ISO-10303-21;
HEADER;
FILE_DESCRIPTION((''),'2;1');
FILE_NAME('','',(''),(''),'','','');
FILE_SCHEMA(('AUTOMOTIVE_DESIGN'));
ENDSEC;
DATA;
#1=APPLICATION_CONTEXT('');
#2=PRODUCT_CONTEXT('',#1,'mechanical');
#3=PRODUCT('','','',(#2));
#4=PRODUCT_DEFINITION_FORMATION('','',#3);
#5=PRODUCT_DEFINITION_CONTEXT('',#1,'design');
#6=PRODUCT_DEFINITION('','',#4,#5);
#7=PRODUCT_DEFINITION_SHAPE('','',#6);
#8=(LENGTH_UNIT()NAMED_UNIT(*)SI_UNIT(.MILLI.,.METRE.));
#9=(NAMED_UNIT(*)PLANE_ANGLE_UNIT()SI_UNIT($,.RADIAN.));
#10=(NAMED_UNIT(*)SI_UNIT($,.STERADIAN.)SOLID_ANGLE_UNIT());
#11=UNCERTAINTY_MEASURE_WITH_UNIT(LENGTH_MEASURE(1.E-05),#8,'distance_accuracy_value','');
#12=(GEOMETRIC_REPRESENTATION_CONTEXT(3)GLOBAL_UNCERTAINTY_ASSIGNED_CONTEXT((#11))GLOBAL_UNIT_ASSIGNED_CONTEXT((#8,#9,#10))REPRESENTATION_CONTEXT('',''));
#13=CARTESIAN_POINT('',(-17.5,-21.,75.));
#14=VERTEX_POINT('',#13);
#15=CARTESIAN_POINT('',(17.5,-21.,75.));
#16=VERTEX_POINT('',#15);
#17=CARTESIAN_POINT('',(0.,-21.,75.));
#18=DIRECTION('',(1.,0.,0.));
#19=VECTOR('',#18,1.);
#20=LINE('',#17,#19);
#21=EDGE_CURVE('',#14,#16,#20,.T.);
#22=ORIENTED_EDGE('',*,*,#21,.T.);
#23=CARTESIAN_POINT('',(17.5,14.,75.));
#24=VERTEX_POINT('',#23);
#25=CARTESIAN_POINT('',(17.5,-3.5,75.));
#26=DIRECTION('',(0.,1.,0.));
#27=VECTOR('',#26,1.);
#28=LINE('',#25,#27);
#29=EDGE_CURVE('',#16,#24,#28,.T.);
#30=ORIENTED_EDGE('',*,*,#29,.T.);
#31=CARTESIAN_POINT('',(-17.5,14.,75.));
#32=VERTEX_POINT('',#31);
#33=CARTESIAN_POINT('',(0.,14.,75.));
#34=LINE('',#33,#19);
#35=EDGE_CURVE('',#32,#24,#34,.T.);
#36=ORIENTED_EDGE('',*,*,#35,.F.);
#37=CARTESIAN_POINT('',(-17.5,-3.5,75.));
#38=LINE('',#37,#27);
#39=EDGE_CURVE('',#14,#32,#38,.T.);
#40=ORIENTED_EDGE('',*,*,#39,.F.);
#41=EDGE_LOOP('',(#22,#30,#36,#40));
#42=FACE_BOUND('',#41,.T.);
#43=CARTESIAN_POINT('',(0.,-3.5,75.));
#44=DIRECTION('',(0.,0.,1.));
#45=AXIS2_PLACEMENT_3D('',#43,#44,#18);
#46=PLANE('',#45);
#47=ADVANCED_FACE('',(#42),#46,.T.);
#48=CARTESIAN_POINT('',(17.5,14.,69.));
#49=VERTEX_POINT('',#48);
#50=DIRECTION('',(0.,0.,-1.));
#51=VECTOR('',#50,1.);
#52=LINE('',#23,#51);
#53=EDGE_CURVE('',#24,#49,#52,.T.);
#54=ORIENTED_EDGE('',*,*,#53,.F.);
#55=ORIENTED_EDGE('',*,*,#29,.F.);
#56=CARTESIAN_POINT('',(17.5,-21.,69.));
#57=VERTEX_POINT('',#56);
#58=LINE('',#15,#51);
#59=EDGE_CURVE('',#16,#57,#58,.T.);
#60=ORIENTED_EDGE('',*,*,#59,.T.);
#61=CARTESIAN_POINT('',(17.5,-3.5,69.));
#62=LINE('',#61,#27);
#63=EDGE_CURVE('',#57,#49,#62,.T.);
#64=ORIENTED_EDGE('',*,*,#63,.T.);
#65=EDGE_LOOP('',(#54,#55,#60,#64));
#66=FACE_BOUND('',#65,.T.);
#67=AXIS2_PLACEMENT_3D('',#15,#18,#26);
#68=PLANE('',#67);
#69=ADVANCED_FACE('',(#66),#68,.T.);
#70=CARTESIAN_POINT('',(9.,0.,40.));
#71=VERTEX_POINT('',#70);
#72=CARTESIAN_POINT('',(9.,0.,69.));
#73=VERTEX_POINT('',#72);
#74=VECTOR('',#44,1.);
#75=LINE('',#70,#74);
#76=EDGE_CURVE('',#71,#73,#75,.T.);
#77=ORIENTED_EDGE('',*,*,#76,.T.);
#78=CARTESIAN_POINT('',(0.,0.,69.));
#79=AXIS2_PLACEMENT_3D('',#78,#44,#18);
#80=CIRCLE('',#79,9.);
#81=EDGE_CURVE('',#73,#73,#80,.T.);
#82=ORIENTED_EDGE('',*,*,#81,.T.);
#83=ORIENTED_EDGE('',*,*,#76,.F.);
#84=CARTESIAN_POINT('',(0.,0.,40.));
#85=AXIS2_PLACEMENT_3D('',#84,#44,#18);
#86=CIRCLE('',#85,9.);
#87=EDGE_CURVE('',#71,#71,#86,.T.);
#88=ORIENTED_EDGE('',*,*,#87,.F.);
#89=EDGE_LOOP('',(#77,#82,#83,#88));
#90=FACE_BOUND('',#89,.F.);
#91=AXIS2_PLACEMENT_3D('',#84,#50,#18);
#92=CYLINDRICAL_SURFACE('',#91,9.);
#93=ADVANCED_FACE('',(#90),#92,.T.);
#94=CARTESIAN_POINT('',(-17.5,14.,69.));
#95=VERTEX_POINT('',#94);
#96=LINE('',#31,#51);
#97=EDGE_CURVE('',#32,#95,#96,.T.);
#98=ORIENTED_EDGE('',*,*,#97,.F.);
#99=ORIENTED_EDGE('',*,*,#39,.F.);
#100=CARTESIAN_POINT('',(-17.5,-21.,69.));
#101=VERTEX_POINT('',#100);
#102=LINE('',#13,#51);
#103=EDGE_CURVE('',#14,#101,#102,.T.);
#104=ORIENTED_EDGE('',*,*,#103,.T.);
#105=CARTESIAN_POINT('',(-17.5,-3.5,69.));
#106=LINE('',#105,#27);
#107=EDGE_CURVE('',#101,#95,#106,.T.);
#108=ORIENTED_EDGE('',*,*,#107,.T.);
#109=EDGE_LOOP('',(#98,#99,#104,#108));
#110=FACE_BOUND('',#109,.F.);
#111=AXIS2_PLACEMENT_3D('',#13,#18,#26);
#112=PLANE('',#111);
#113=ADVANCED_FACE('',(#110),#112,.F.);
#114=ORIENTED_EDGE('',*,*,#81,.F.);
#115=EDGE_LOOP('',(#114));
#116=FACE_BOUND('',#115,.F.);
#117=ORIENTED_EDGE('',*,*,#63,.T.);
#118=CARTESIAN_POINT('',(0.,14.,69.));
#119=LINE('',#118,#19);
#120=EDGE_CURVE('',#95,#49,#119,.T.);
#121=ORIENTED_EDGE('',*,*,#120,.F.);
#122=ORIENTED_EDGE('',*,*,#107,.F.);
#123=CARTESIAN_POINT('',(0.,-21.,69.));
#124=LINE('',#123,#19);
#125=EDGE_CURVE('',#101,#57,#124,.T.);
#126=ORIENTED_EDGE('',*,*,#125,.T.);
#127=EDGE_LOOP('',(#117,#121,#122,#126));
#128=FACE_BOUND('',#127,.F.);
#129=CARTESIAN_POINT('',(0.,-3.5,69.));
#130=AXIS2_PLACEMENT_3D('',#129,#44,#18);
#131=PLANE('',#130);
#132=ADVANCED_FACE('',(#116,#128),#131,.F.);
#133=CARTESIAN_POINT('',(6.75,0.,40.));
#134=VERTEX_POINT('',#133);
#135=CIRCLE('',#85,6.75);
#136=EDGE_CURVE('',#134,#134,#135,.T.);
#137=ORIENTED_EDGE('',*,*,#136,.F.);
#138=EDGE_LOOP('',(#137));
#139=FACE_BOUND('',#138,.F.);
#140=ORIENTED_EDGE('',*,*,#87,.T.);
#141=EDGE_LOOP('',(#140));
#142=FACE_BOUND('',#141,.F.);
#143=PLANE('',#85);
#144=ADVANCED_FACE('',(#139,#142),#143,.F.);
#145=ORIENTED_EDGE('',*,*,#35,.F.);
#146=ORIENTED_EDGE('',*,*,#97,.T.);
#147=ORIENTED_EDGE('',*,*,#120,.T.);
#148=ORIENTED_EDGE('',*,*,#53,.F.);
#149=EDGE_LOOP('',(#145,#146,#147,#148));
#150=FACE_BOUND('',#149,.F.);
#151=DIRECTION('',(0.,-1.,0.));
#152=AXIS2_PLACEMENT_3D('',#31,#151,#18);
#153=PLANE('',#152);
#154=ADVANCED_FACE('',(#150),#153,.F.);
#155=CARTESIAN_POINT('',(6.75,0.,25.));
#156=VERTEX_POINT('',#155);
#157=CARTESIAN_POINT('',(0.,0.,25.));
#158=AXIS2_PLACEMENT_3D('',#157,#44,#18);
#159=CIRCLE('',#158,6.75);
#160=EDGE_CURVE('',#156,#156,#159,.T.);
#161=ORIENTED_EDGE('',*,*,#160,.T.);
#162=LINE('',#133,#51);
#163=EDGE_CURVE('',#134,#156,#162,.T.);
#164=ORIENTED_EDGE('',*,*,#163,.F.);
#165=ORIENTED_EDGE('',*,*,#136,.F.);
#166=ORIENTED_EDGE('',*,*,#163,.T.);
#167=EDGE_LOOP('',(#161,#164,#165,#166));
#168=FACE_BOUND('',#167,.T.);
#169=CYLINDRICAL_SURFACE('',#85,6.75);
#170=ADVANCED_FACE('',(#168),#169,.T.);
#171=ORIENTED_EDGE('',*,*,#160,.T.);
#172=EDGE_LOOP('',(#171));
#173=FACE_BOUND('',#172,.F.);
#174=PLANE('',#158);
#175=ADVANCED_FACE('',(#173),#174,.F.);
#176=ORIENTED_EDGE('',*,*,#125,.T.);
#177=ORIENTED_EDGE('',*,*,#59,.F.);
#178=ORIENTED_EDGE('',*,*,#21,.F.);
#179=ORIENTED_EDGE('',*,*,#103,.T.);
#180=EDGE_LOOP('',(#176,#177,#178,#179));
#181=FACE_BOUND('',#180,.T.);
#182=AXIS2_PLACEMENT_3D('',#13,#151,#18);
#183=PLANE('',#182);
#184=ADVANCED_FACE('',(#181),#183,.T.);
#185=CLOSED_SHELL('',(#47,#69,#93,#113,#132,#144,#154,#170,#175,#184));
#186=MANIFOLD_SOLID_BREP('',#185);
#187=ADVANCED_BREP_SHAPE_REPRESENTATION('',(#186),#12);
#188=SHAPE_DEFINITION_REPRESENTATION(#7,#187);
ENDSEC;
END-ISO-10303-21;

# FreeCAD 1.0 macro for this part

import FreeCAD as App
import Part
import Sketcher
Q = App.Units.Quantity


def add_polygon(sketch, points):
    """Adds a closed chain of lines whose ends are joined by coincident constraints."""
    first, n = sketch.GeometryCount, len(points)
    for a, b in zip(points, points[1:] + points[:1]):
        sketch.addGeometry(Part.LineSegment(App.Vector(*a, 0), App.Vector(*b, 0)), False)
    for i in range(n):
        sketch.addConstraint(Sketcher.Constraint("Coincident", first + i, 2, first + (i + 1) % n, 1))

doc = App.newDocument("Part")
body = doc.addObject("PartDesign::Body", "Body")

sketch1 = body.newObject("Sketcher::SketchObject", "Sketch")
sketch1.AttachmentSupport = (doc.getObject("XY_Plane"), [""])
sketch1.MapMode = "FlatFace"
sketch1.AttachmentOffset = App.Placement(App.Vector(0, 0, 40), App.Rotation())
sketch1.addGeometry(Part.Circle(App.Vector(0, 0, 0), App.Vector(0, 0, 1), 6.75), False)
sketch1.addConstraint([
    Sketcher.Constraint("Coincident", 0, 3, -1, 1),
    Sketcher.Constraint("Diameter", 0, Q("13.5 mm")),
])
pad1 = body.newObject("PartDesign::Pad", "Pad")
pad1.Profile = sketch1
pad1.Length = 15
pad1.Reversed = True

sketch2 = body.newObject("Sketcher::SketchObject", "Sketch001")
sketch2.AttachmentSupport = (doc.getObject("XY_Plane"), [""])
sketch2.MapMode = "FlatFace"
sketch2.AttachmentOffset = App.Placement(App.Vector(0, 0, 40), App.Rotation())
sketch2.addGeometry(Part.Circle(App.Vector(0, 0, 0), App.Vector(0, 0, 1), 9), False)
sketch2.addConstraint([
    Sketcher.Constraint("Coincident", 0, 3, -1, 1),
    Sketcher.Constraint("Diameter", 0, Q("18 mm")),
])
pad2 = body.newObject("PartDesign::Pad", "Pad001")
pad2.Profile = sketch2
pad2.Length = 35

sketch3 = body.newObject("Sketcher::SketchObject", "Sketch002")
sketch3.AttachmentSupport = (doc.getObject("XY_Plane"), [""])
sketch3.MapMode = "FlatFace"
sketch3.AttachmentOffset = App.Placement(App.Vector(0, 0, 75), App.Rotation())
add_polygon(sketch3, [(-17.5, 14), (-17.5, -21), (17.5, -21), (17.5, 14)])
sketch3.addGeometry(Part.Circle(App.Vector(0, 0, 0), App.Vector(0, 0, 1), 9), False)
sketch3.addConstraint([
    Sketcher.Constraint("Vertical", 0),
    Sketcher.Constraint("Horizontal", 1),
    Sketcher.Constraint("Vertical", 2),
    Sketcher.Constraint("Horizontal", 3),
    Sketcher.Constraint("Coincident", 4, 3, -1, 1),
    Sketcher.Constraint("Equal", 3, 0),
    Sketcher.Constraint("Diameter", 4, Q("18 mm")),
    Sketcher.Constraint("DistanceX", 1, 1, 1, 2, Q("35 mm")),
    Sketcher.Constraint("DistanceY", 0, 2, -1, 1, Q("21 mm")),
    Sketcher.Constraint("DistanceX", 0, 2, -1, 1, Q("17.5 mm")),
])
pad3 = body.newObject("PartDesign::Pad", "Pad002")
pad3.Profile = sketch3
pad3.Length = 6
pad3.Reversed = True

doc.recompute()
